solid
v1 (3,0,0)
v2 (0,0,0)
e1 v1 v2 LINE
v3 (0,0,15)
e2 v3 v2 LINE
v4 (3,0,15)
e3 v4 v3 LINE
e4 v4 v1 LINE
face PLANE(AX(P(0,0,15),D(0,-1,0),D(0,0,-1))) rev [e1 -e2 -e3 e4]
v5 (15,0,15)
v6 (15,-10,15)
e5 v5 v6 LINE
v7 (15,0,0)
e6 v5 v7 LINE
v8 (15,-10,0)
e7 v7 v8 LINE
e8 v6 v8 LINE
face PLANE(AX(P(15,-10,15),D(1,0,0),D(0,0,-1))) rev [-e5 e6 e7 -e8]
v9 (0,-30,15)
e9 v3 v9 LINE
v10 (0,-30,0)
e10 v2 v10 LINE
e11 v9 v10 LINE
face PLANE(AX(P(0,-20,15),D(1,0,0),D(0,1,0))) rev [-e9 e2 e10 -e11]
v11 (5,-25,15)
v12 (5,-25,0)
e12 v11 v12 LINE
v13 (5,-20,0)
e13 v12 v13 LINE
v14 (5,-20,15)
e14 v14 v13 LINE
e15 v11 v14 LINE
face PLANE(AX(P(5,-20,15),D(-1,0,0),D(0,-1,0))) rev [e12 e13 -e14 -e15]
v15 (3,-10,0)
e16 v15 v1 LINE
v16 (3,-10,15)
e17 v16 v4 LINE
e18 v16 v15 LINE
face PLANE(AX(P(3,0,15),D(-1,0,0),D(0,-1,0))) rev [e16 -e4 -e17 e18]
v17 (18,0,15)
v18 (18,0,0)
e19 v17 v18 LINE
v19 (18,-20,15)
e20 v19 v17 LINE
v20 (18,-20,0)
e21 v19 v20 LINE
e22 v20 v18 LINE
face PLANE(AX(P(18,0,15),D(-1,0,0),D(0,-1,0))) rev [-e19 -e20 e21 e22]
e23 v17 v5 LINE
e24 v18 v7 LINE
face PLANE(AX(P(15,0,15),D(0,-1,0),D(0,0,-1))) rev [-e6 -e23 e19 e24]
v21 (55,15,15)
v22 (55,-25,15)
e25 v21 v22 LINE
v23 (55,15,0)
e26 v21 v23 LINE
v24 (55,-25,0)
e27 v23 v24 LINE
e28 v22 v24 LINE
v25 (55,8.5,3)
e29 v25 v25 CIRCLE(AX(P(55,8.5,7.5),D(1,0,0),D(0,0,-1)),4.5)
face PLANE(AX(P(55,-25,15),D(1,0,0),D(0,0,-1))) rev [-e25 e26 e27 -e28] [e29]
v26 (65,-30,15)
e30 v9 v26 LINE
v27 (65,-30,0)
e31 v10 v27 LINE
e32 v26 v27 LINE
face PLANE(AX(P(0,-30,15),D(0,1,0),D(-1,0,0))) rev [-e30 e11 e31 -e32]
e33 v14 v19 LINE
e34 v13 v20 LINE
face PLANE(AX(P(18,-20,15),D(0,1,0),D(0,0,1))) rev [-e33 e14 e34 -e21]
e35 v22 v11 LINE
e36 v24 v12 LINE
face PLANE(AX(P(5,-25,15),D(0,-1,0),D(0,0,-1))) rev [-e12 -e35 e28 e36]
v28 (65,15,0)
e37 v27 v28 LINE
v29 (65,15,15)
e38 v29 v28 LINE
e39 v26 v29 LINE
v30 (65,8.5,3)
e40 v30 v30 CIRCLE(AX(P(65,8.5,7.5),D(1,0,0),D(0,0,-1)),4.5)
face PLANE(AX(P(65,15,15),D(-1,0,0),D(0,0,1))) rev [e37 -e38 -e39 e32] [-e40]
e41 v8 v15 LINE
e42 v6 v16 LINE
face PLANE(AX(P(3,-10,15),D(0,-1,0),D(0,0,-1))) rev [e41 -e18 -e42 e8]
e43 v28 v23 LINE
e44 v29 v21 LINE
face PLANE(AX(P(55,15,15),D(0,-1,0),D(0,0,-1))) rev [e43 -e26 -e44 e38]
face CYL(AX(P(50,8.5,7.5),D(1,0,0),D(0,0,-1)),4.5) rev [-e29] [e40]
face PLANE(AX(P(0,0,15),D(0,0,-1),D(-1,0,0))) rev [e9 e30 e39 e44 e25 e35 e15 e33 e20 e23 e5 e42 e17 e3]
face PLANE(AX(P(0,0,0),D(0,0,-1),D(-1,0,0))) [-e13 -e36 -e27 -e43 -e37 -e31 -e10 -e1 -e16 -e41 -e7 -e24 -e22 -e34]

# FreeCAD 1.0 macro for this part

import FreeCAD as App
import Part
import Sketcher

V = App.Vector

doc = App.newDocument("Part")
body = doc.addObject("PartDesign::Body", "Body")

sketch1 = body.newObject("Sketcher::SketchObject", "Sketch")
sketch1.AttachmentSupport = (doc.getObject("XY_Plane"), [""])
sketch1.MapMode = "FlatFace"
sketch1.addGeometry([
    Part.LineSegment(V(0, 0, 0), V(0, -30, 0)),
    Part.LineSegment(V(0, -30, 0), V(65, -30, 0)),
    Part.LineSegment(V(65, -30, 0), V(65, 15, 0)),
    Part.LineSegment(V(65, 15, 0), V(55, 15, 0)),
    Part.LineSegment(V(55, 15, 0), V(55, -25, 0)),
    Part.LineSegment(V(55, -25, 0), V(5, -25, 0)),
    Part.LineSegment(V(5, -25, 0), V(5, -20, 0)),
    Part.LineSegment(V(5, -20, 0), V(18, -20, 0)),
    Part.LineSegment(V(18, -20, 0), V(18, 0, 0)),
    Part.LineSegment(V(18, 0, 0), V(15, 0, 0)),
    Part.LineSegment(V(15, 0, 0), V(15, -10, 0)),
    Part.LineSegment(V(15, -10, 0), V(3, -10, 0)),
    Part.LineSegment(V(3, -10, 0), V(3, 0, 0)),
    Part.LineSegment(V(3, 0, 0), V(0, 0, 0)),
], False)
sketch1.addConstraint([
    Sketcher.Constraint("Coincident", 0, 2, 1, 1),
    Sketcher.Constraint("Coincident", 1, 2, 2, 1),
    Sketcher.Constraint("Coincident", 2, 2, 3, 1),
    Sketcher.Constraint("Coincident", 3, 2, 4, 1),
    Sketcher.Constraint("Coincident", 4, 2, 5, 1),
    Sketcher.Constraint("Coincident", 5, 2, 6, 1),
    Sketcher.Constraint("Coincident", 6, 2, 7, 1),
    Sketcher.Constraint("Coincident", 7, 2, 8, 1),
    Sketcher.Constraint("Coincident", 8, 2, 9, 1),
    Sketcher.Constraint("Coincident", 9, 2, 10, 1),
    Sketcher.Constraint("Coincident", 10, 2, 11, 1),
    Sketcher.Constraint("Coincident", 11, 2, 12, 1),
    Sketcher.Constraint("Coincident", 12, 2, 13, 1),
    Sketcher.Constraint("Coincident", 13, 2, 0, 1),
    Sketcher.Constraint("Vertical", 0),
    Sketcher.Constraint("Horizontal", 1),
    Sketcher.Constraint("Vertical", 2),
    Sketcher.Constraint("Horizontal", 3),
    Sketcher.Constraint("Vertical", 4),
    Sketcher.Constraint("Horizontal", 5),
    Sketcher.Constraint("Vertical", 6),
    Sketcher.Constraint("Horizontal", 7),
    Sketcher.Constraint("Vertical", 8),
    Sketcher.Constraint("Horizontal", 9),
    Sketcher.Constraint("Vertical", 10),
    Sketcher.Constraint("Horizontal", 11),
    Sketcher.Constraint("Vertical", 12),
    Sketcher.Constraint("Horizontal", 13),
    Sketcher.Constraint("Coincident", 13, 2, -1, 1),
    Sketcher.Constraint("PointOnObject", 8, 2, -1),
    Sketcher.Constraint("Equal", 9, 13),
    Sketcher.Constraint("Equal", 3, 10),
    Sketcher.Constraint("DistanceX", 1, 1, 1, 2, 65.0),
    Sketcher.Constraint("DistanceX", 3, 2, 3, 1, 10.0),
    Sketcher.Constraint("DistanceX", 5, 2, 5, 1, 50.0),
    Sketcher.Constraint("DistanceX", 7, 1, 7, 2, 13.0),
    Sketcher.Constraint("DistanceX", 9, 2, 9, 1, 3.0),
    Sketcher.Constraint("DistanceY", 0, 2, 0, 1, 30.0),
    Sketcher.Constraint("DistanceY", 2, 1, 2, 2, 45.0),
    Sketcher.Constraint("DistanceY", 4, 2, 4, 1, 40.0),
    Sketcher.Constraint("DistanceY", 6, 1, 6, 2, 5.0),
])
pad1 = body.newObject("PartDesign::Pad", "Pad")
pad1.Profile = sketch1
pad1.Length = 15

sketch2 = body.newObject("Sketcher::SketchObject", "Sketch001")
sketch2.AttachmentSupport = (doc.getObject("YZ_Plane"), [""])
sketch2.MapMode = "FlatFace"
sketch2.AttachmentOffset = App.Placement(V(0, 0, 65), App.Rotation())
sketch2.addGeometry(Part.Circle(V(8.5, 7.5, 0), V(0, 0, 1), 4.5), False)
sketch2.addConstraint([
    Sketcher.Constraint("Diameter", 0, 9.0),
    Sketcher.Constraint("DistanceX", -1, 1, 0, 3, 8.5),
    Sketcher.Constraint("DistanceY", -1, 1, 0, 3, 7.5),
])
pocket1 = body.newObject("PartDesign::Pocket", "Pocket")
pocket1.Profile = sketch2
pocket1.Length = 15

doc.recompute()
